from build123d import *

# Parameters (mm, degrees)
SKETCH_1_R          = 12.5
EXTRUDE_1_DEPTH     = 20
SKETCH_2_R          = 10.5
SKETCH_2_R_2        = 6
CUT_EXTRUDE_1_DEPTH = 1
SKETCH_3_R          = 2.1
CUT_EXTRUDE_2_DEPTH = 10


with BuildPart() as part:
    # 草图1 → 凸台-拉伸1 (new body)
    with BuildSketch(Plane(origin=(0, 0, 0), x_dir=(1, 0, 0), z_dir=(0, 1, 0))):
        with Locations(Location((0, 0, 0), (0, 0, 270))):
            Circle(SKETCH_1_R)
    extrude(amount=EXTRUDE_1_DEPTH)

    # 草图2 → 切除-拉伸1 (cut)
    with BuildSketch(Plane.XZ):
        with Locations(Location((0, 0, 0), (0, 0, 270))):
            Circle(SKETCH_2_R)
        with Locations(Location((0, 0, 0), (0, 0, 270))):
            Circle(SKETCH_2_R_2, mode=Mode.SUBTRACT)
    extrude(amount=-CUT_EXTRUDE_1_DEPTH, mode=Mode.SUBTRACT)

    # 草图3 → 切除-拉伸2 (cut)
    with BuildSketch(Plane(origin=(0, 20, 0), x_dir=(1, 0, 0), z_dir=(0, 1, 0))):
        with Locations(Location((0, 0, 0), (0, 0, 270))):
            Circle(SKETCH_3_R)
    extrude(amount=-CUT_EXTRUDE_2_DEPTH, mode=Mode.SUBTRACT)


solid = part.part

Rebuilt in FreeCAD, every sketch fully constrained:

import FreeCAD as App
import Part
import Sketcher
from FreeCAD import Vector

doc = App.newDocument("Part")
params = doc.addObject("Spreadsheet::Sheet", "Params")
for row, (alias, value) in enumerate([
    ("sketch1_diameter", "25 mm"),
    ("pad1_length", "20 mm"),
    ("sketch2_diameter", "21 mm"),
    ("sketch2_diameter2", "12 mm"),
    ("pocket1_length", "1 mm"),
    ("sketch3_diameter", "4.2 mm"),
    ("pocket2_length", "10 mm"),
], start=1):
    params.set(f"A{row}", alias)
    params.set(f"B{row}", "=" + value)
    params.setAlias(f"B{row}", alias)

body = doc.addObject("PartDesign::Body", "Body")

sketch1 = body.newObject("Sketcher::SketchObject", "Sketch")
sketch1.AttachmentSupport = (doc.getObject("XZ_Plane"), [""])
sketch1.MapMode = "FlatFace"
sketch1.addGeometry(Part.Circle(Vector(0, 0, 0), Vector(0, 0, 1), 12), False)
sketch1.addConstraint([
    Sketcher.Constraint("Coincident", 0, 3, -1, 1),
    Sketcher.Constraint("Diameter", 0, 25.0),
])
sketch1.setExpression("Constraints[1]", "Params.sketch1_diameter")
pad1 = body.newObject("PartDesign::Pad", "Pad")
pad1.Profile = sketch1
pad1.setExpression("Length", "Params.pad1_length")
pad1.Reversed = True

sketch2 = body.newObject("Sketcher::SketchObject", "Sketch001")
sketch2.AttachmentSupport = (doc.getObject("XZ_Plane"), [""])
sketch2.MapMode = "FlatFace"
sketch2.addGeometry([
    Part.Circle(Vector(0, 0, 0), Vector(0, 0, 1), 10),
    Part.Circle(Vector(0, 0, 0), Vector(0, 0, 1), 6),
], False)
sketch2.addConstraint([
    Sketcher.Constraint("Coincident", 0, 3, -1, 1),
    Sketcher.Constraint("Coincident", 1, 3, -1, 1),
    Sketcher.Constraint("Diameter", 0, 21.0),
    Sketcher.Constraint("Diameter", 1, 12.0),
])
sketch2.setExpression("Constraints[2]", "Params.sketch2_diameter")
sketch2.setExpression("Constraints[3]", "Params.sketch2_diameter2")
pocket1 = body.newObject("PartDesign::Pocket", "Pocket")
pocket1.Profile = sketch2
pocket1.setExpression("Length", "Params.pocket1_length")

sketch3 = body.newObject("Sketcher::SketchObject", "Sketch002")
sketch3.AttachmentSupport = (doc.getObject("XZ_Plane"), [""])
sketch3.MapMode = "FlatFace"
sketch3.AttachmentOffset = App.Placement(Vector(0, 0, -20), App.Rotation())
sketch3.addGeometry(Part.Circle(Vector(0, 0, 0), Vector(0, 0, 1), 2.1), False)
sketch3.addConstraint([
    Sketcher.Constraint("Coincident", 0, 3, -1, 1),
    Sketcher.Constraint("Diameter", 0, 4.2),
])
sketch3.setExpression("Constraints[1]", "Params.sketch3_diameter")
pocket2 = body.newObject("PartDesign::Pocket", "Pocket001")
pocket2.Profile = sketch3
pocket2.setExpression("Length", "Params.pocket2_length")
pocket2.Reversed = True

doc.recompute()
